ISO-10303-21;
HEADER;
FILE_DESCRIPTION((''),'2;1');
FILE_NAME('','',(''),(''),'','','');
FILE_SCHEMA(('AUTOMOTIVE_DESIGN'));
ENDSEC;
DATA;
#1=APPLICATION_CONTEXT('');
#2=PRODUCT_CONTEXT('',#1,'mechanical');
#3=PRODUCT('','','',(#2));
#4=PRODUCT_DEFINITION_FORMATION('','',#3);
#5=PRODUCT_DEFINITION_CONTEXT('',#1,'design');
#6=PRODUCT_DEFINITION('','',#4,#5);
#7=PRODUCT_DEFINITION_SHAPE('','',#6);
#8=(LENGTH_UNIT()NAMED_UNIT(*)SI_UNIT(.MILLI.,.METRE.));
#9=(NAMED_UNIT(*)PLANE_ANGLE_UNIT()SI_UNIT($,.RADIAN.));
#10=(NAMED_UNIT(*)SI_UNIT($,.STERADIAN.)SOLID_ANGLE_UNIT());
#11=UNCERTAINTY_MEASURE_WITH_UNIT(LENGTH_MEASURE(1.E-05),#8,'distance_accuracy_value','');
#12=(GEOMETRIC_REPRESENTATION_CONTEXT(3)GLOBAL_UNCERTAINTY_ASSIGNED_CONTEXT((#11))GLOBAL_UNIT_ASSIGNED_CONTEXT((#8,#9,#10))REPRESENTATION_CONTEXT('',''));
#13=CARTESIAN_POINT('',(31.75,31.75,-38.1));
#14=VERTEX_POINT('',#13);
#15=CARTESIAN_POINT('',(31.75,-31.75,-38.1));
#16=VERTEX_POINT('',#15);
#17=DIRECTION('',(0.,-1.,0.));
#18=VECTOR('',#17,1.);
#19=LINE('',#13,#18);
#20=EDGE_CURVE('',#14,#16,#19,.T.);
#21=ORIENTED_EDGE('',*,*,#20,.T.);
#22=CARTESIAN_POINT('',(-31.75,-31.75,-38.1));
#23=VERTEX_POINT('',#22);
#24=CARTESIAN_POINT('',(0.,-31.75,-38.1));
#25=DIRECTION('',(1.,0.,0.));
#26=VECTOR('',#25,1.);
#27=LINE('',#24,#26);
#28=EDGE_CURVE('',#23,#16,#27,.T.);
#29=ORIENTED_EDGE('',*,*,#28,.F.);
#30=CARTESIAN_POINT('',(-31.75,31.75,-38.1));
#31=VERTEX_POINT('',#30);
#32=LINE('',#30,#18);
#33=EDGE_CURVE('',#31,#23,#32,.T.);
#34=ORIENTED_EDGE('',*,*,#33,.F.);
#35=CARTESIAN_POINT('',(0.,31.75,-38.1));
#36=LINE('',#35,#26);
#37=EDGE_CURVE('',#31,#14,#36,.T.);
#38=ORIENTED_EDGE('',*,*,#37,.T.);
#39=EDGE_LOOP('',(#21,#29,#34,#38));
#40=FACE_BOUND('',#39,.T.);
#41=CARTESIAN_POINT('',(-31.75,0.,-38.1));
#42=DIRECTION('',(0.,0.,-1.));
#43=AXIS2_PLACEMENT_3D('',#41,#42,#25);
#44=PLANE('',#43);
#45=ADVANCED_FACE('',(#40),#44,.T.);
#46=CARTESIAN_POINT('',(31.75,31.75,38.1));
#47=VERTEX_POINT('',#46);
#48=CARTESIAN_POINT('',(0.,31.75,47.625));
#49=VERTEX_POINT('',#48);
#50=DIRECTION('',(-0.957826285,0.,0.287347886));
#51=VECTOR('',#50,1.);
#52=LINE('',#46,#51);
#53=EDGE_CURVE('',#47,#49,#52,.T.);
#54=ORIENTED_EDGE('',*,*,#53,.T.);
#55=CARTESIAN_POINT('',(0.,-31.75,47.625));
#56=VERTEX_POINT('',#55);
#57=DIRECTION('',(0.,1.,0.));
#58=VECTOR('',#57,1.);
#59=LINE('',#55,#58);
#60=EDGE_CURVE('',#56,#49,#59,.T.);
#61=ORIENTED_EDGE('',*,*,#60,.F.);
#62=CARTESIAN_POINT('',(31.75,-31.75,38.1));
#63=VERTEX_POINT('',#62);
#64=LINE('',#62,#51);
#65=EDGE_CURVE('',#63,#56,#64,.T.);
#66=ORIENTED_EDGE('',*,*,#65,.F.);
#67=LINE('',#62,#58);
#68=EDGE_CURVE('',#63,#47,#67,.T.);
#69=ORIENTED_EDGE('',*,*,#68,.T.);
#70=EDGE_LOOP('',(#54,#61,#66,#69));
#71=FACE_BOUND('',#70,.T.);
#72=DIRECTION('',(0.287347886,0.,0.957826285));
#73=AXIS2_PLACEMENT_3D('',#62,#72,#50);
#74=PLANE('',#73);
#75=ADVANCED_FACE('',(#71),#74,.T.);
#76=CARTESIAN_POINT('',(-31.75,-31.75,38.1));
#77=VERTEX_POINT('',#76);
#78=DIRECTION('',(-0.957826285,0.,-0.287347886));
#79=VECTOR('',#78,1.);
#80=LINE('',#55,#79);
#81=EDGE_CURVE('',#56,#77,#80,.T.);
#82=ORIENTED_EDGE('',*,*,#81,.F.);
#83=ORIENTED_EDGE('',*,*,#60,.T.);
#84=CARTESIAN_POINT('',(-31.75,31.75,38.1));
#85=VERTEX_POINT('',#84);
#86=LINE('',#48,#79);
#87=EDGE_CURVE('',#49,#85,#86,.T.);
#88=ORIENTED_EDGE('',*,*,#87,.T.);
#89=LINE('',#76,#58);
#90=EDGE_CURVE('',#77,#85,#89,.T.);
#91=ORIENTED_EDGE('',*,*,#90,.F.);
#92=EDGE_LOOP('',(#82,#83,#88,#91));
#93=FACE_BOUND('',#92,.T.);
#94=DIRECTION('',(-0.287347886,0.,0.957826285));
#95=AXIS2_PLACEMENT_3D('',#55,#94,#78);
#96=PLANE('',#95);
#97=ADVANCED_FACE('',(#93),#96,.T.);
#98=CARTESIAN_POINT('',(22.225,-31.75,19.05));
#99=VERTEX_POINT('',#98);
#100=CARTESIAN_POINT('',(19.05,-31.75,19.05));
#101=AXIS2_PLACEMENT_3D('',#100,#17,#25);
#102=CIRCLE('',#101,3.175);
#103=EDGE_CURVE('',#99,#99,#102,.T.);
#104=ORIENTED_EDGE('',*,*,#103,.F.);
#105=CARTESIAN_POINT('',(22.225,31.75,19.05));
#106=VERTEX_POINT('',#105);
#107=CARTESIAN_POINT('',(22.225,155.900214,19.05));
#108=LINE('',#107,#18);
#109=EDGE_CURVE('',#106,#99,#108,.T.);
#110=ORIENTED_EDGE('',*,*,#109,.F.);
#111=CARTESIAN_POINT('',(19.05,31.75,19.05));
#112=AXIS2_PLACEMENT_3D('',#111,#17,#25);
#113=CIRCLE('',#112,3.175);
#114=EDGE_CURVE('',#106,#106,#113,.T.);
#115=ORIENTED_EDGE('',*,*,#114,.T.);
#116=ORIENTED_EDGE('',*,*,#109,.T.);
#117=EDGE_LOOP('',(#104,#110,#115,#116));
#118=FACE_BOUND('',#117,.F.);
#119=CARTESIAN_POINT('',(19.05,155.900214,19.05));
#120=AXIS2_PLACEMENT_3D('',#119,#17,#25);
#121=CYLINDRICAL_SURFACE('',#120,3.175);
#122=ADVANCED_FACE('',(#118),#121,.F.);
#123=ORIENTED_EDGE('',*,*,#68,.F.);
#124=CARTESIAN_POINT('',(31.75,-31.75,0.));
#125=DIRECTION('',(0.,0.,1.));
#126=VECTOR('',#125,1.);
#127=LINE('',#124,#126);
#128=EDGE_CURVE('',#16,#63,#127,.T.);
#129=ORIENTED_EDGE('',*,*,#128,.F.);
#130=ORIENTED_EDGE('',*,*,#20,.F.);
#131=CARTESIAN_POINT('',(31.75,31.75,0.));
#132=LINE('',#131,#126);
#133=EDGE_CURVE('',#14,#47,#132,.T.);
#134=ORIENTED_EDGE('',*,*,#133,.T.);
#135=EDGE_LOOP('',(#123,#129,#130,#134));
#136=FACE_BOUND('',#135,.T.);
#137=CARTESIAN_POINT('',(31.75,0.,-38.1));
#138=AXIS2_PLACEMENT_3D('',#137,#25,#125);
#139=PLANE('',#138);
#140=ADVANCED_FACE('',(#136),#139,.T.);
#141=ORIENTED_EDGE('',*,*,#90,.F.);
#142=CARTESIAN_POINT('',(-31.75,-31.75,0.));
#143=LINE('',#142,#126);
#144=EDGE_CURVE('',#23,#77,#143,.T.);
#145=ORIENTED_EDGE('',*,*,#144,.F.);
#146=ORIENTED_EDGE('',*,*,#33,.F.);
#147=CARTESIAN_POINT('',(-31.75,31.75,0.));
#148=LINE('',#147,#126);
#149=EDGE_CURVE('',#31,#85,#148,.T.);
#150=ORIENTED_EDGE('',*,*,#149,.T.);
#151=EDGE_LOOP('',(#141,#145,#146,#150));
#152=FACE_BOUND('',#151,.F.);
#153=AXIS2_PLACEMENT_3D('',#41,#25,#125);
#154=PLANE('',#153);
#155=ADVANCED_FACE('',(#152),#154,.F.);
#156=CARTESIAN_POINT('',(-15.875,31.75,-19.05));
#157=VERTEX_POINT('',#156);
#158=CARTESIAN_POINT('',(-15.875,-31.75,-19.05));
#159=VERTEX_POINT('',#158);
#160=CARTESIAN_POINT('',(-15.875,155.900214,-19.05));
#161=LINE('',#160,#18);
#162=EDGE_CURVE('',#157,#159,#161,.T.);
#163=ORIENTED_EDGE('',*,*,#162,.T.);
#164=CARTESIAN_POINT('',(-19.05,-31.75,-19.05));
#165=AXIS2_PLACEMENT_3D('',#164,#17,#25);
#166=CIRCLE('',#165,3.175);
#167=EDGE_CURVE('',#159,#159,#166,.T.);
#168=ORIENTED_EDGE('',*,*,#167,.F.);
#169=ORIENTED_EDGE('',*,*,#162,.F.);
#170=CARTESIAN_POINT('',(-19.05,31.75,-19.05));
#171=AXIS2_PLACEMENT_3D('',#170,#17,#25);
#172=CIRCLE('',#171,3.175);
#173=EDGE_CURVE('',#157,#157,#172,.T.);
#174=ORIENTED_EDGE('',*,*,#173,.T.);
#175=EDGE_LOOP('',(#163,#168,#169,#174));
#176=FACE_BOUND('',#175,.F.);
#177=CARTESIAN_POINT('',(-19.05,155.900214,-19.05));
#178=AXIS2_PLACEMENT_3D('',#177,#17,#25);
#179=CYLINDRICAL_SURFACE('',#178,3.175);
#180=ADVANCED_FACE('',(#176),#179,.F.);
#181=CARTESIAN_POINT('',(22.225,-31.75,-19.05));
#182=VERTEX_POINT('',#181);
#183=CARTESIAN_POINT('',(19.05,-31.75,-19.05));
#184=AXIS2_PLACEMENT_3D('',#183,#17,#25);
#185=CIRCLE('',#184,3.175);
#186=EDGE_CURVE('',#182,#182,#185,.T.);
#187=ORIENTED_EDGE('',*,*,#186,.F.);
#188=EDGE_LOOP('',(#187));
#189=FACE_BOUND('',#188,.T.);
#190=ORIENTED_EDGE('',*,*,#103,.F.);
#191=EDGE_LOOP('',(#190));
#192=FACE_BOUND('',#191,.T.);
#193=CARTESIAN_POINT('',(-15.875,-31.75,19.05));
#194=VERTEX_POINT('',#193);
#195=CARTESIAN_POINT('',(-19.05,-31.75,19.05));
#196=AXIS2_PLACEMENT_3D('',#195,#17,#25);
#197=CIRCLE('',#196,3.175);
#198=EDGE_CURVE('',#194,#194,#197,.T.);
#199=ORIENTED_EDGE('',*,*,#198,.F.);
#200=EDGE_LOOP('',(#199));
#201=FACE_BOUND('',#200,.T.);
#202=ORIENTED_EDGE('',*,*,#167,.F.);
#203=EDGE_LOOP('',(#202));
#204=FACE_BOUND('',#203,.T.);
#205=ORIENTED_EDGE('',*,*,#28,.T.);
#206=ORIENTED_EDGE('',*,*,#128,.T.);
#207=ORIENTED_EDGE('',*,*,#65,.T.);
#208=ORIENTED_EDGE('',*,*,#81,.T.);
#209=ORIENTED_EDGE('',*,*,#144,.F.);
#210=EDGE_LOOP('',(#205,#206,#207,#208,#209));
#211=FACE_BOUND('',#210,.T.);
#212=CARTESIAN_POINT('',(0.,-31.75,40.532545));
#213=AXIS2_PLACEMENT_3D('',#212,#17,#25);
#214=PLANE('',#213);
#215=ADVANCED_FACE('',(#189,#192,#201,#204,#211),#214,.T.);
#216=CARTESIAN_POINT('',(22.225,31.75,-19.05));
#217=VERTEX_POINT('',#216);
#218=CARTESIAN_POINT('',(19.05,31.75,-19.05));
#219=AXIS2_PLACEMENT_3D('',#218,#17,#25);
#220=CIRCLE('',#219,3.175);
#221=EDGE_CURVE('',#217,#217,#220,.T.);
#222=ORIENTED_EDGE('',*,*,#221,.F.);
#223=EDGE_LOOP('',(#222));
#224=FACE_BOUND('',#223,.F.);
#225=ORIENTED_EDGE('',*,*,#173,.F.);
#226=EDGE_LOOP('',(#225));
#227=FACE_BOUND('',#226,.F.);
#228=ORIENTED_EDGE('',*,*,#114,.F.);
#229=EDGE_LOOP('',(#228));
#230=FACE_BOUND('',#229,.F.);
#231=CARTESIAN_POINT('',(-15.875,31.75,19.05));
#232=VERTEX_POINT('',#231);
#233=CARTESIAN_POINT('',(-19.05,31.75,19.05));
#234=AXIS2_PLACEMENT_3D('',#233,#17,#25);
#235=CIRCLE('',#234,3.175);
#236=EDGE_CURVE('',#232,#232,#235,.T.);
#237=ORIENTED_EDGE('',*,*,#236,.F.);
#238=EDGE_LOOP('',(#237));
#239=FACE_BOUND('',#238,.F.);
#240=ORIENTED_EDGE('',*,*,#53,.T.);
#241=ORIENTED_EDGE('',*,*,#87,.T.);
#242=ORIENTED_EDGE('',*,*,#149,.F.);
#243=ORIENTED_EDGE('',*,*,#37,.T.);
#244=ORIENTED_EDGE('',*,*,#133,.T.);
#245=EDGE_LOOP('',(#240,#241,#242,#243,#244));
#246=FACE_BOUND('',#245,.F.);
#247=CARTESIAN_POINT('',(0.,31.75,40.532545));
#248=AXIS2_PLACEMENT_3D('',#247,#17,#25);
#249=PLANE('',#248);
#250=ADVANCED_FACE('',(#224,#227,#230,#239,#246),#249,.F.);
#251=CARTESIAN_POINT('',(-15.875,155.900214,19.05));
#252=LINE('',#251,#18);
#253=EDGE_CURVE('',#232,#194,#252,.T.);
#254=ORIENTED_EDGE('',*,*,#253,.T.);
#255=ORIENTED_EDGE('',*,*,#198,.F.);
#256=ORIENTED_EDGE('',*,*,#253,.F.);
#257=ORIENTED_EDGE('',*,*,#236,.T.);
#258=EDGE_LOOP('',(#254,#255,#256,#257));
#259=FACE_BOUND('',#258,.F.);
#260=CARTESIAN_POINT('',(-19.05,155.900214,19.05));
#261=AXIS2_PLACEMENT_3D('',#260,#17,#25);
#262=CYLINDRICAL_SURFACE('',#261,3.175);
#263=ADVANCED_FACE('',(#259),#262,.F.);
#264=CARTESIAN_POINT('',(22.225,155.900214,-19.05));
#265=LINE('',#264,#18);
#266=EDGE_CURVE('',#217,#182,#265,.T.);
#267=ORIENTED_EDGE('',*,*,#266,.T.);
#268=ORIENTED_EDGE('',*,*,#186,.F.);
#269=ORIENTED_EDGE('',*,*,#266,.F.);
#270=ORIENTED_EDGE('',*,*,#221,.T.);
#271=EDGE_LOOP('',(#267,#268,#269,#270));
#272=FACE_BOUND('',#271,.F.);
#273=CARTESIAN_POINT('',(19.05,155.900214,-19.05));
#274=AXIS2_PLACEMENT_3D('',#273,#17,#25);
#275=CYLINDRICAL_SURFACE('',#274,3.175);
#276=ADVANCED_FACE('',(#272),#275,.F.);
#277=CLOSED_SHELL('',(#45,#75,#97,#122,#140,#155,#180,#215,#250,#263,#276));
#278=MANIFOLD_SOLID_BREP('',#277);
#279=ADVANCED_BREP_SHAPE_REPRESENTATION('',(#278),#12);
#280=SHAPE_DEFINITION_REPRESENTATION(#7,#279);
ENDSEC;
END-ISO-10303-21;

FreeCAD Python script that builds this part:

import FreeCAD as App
import Part
import Sketcher
Q = App.Units.Quantity


def add_polygon(sketch, points):
    """Adds a closed chain of lines whose ends are joined by coincident constraints."""
    first, n = sketch.GeometryCount, len(points)
    for a, b in zip(points, points[1:] + points[:1]):
        sketch.addGeometry(Part.LineSegment(App.Vector(*a, 0), App.Vector(*b, 0)), False)
    for i in range(n):
        sketch.addConstraint(Sketcher.Constraint("Coincident", first + i, 2, first + (i + 1) % n, 1))

doc = App.newDocument("Part")
body = doc.addObject("PartDesign::Body", "Body")

# Sketch on XZ plane
sketch1 = body.newObject("Sketcher::SketchObject", "Sketch")
sketch1.AttachmentSupport = (doc.getObject("XZ_Plane"), [""])
sketch1.MapMode = "FlatFace"
add_polygon(sketch1, [(-32, 38), (-32, -38), (32, -38), (32, 38)])  # lines 0-3
sketch1.addConstraint(Sketcher.Constraint("Vertical", 0))
sketch1.addConstraint(Sketcher.Constraint("Horizontal", 1))
sketch1.addConstraint(Sketcher.Constraint("Vertical", 2))
sketch1.addConstraint(Sketcher.Constraint("Horizontal", 3))
sketch1.addConstraint(Sketcher.Constraint("Symmetric", 0, 2, 2, 2, -1, 1))
sketch1.addConstraint(Sketcher.Constraint("DistanceY", 0, 2, 0, 1, Q("3 in")))
sketch1.addConstraint(Sketcher.Constraint("DistanceX", 1, 1, 1, 2, Q("2.5 in")))
pad1 = body.newObject("PartDesign::Pad", "Pad")
pad1.Profile = sketch1
pad1.Length = Q("2.5 in")
pad1.Midplane = True

# Sketch on XZ plane
sketch2 = body.newObject("Sketcher::SketchObject", "Sketch001")
sketch2.AttachmentSupport = (doc.getObject("XZ_Plane"), [""])
sketch2.MapMode = "FlatFace"
sketch2.AttachmentOffset = App.Placement(App.Vector(0, 0, 1.25 * 25.4), App.Rotation())
add_polygon(sketch2, [(0, 48), (-32, 38), (32, 38)])  # lines 0-2
sketch2.addConstraint(Sketcher.Constraint("Horizontal", 1))
sketch2.addConstraint(Sketcher.Constraint("PointOnObject", 2, 2, -2))
sketch2.addConstraint(Sketcher.Constraint("Equal", 0, 2))
sketch2.addConstraint(Sketcher.Constraint("DistanceX", 1, 1, 1, 2, Q("2.5 in")))
sketch2.addConstraint(Sketcher.Constraint("DistanceY", -1, 1, 0, 2, Q("1.5 in")))
sketch2.addConstraint(Sketcher.Constraint("DistanceY", -1, 1, 2, 2, Q("1.875 in")))
pad2 = body.newObject("PartDesign::Pad", "Pad001")
pad2.Profile = sketch2
pad2.Length = Q("2.5 in")
pad2.Reversed = True

# Sketch on XZ plane
sketch3 = body.newObject("Sketcher::SketchObject", "Sketch002")
sketch3.AttachmentSupport = (doc.getObject("XZ_Plane"), [""])
sketch3.MapMode = "FlatFace"
sketch3.AttachmentOffset = App.Placement(App.Vector(0, 0, -1.25 * 25.4), App.Rotation())
sketch3.addGeometry(Part.Circle(App.Vector(19.1, 19.1, 0), App.Vector(0, 0, 1), 3.2), False)
sketch3.addGeometry(Part.Circle(App.Vector(-19.1, 19.1, 0), App.Vector(0, 0, 1), 3.2), False)
sketch3.addGeometry(Part.Circle(App.Vector(19.1, -19.1, 0), App.Vector(0, 0, 1), 3.2), False)
sketch3.addGeometry(Part.Circle(App.Vector(-19.1, -19.1, 0), App.Vector(0, 0, 1), 3.2), False)
sketch3.addConstraint(Sketcher.Constraint("Equal", 0, 1))
sketch3.addConstraint(Sketcher.Constraint("Equal", 1, 2))
sketch3.addConstraint(Sketcher.Constraint("Equal", 2, 3))
sketch3.addConstraint(Sketcher.Constraint("Symmetric", 1, 3, 2, 3, -1, 1))
sketch3.addConstraint(Sketcher.Constraint("Symmetric", 0, 3, 3, 3, -1, 1))
sketch3.addConstraint(Sketcher.Constraint("Symmetric", 0, 3, 1, 3, -2))
sketch3.addConstraint(Sketcher.Constraint("Diameter", 0, Q("0.25 in")))
sketch3.addConstraint(Sketcher.Constraint("DistanceX", 1, 3, 0, 3, Q("1.5 in")))
sketch3.addConstraint(Sketcher.Constraint("DistanceY", 2, 3, 0, 3, Q("1.5 in")))
doc.recompute()
hole = body.newObject("PartDesign::Hole", "Hole")
hole.Profile = sketch3
hole.ThreadType = "None"
hole.Diameter = Q("0.25 in")
hole.DepthType = "ThroughAll"
hole.Reversed = True

doc.recompute()
